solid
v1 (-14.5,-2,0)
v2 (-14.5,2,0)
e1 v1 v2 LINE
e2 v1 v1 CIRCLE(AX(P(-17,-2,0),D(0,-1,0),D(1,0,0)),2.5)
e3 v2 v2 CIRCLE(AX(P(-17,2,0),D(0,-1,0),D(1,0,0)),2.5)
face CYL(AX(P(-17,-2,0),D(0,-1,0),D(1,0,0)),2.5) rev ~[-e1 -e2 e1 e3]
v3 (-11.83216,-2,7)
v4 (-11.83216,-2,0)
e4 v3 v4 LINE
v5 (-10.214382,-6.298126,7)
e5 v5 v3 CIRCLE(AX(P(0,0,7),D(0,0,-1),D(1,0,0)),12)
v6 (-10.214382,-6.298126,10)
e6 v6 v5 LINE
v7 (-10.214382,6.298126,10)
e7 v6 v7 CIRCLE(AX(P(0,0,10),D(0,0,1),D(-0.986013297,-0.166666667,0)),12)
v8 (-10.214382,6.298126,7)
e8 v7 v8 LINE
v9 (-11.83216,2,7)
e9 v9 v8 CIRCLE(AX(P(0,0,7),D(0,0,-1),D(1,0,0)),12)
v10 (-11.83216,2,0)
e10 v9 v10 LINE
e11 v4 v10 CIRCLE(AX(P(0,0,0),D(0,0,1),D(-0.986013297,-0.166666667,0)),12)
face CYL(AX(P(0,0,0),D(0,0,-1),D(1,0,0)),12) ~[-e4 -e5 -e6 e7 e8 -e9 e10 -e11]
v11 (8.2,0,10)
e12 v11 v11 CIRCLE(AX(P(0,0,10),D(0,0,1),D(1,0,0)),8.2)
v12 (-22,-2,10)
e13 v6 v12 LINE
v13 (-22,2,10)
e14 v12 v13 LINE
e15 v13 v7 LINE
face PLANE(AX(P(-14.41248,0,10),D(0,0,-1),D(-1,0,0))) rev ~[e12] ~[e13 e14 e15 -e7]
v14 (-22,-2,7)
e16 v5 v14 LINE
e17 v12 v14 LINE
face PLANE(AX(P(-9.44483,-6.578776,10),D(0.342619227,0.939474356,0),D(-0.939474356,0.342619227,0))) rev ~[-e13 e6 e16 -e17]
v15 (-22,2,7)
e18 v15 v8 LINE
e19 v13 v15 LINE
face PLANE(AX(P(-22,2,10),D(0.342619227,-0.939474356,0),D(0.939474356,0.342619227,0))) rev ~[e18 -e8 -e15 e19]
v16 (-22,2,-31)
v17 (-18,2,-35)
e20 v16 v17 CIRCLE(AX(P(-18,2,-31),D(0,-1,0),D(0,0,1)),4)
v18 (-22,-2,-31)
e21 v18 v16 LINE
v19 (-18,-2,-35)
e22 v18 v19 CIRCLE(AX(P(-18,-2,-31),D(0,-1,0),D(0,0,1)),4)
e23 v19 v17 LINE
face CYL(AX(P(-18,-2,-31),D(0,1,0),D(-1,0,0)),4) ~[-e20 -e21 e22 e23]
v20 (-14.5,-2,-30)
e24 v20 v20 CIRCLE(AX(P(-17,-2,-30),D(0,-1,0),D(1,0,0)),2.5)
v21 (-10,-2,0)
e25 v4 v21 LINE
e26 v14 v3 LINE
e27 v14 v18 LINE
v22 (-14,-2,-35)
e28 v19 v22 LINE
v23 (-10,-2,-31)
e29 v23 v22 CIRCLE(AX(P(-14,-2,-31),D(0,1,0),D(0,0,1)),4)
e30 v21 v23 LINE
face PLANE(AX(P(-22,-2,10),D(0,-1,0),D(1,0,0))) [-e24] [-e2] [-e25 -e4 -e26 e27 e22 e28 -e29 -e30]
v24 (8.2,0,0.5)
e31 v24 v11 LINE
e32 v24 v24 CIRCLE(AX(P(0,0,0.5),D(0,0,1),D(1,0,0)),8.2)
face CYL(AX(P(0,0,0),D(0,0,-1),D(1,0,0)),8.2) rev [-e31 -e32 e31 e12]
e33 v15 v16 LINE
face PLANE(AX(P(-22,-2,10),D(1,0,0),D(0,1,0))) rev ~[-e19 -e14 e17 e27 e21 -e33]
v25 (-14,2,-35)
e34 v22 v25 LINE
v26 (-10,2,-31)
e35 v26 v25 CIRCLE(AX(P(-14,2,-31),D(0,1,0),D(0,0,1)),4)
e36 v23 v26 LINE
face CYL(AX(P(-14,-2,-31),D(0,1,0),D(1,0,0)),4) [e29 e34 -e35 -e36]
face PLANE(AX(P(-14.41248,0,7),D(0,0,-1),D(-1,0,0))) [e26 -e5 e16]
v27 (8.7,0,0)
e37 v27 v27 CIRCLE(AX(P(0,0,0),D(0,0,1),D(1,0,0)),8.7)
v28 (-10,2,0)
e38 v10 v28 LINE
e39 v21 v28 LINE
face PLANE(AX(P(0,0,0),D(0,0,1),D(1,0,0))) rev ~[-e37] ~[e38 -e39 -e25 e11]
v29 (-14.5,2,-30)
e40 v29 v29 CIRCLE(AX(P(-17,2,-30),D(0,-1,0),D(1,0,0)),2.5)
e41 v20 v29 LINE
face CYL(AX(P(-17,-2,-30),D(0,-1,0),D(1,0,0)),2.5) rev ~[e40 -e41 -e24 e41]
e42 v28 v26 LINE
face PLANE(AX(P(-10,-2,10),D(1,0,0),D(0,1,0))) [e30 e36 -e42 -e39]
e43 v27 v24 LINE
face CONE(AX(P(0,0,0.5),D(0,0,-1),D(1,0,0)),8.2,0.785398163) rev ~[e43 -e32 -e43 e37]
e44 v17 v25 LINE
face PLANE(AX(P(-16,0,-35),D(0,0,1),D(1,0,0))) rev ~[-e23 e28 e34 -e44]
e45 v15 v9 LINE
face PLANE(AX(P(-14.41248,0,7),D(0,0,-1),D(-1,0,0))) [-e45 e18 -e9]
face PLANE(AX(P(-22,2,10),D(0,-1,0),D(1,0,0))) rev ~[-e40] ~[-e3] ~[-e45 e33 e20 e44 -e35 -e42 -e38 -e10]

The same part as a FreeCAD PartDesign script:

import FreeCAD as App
import Part
import Sketcher
Q = App.Units.Quantity


def edges_at(feature, points):
    """Names of the edges that pass closest to the given points."""
    edges = feature.Shape.Edges
    near = lambda p: min(range(len(edges)), key=lambda i: edges[i].distToShape(Part.Vertex(*p))[0])
    return sorted({f"Edge{near(p) + 1}" for p in points})

doc = App.newDocument("Part")
params = doc.addObject("Spreadsheet::Sheet", "Params")
for row, (alias, value) in enumerate([
    ("sketch1_diameter", "24 mm"),
    ("sketch1_diameter2", "16.4 mm"),
    ("pad1_length", "10 mm"),
    ("sketch2_width", "12 mm"),
    ("sketch2_height", "4 mm"),
    ("pad2_length", "45 mm"),
    ("sketch3_diameter", "5 mm"),
    ("pocket1_length", "5 mm"),
    ("sketch4_height", "4 mm"),
    ("pad3_length", "3 mm"),
    ("fillet_radius", "4 mm"),
    ("chamfer_size", "0.5 mm"),
], start=1):
    params.set(f"A{row}", alias)
    params.set(f"B{row}", "=" + value)
    params.setAlias(f"B{row}", alias)

body = doc.addObject("PartDesign::Body", "Body")

sketch1 = body.newObject("Sketcher::SketchObject", "Sketch")
sketch1.AttachmentSupport = (doc.getObject("XY_Plane"), [""])
sketch1.MapMode = "FlatFace"
sketch1.addGeometry(Part.Circle(App.Vector(0, 0, 0), App.Vector(0, 0, 1), 12), False)
sketch1.addGeometry(Part.Circle(App.Vector(0, 0, 0), App.Vector(0, 0, 1), 8.2), False)
sketch1.addConstraint(Sketcher.Constraint("Coincident", 0, 3, -1, 1))
sketch1.addConstraint(Sketcher.Constraint("Coincident", 1, 3, -1, 1))
sketch1.addConstraint(Sketcher.Constraint("Diameter", 0, Q("24 mm")))
sketch1.addConstraint(Sketcher.Constraint("Diameter", 1, Q("16.4 mm")))
sketch1.setExpression("Constraints[2]", "Params.sketch1_diameter")
sketch1.setExpression("Constraints[3]", "Params.sketch1_diameter2")
pad1 = body.newObject("PartDesign::Pad", "Pad")
pad1.Profile = sketch1
pad1.setExpression("Length", "Params.pad1_length")

sketch2 = body.newObject("Sketcher::SketchObject", "Sketch001")
sketch2.AttachmentSupport = (doc.getObject("XY_Plane"), [""])
sketch2.MapMode = "FlatFace"
sketch2.AttachmentOffset = App.Placement(App.Vector(0, 0, 10), App.Rotation())
sketch2.addGeometry(Part.LineSegment(App.Vector(-22, 2, 0), App.Vector(-22, -2, 0)), False)
sketch2.addGeometry(Part.LineSegment(App.Vector(-22, -2, 0), App.Vector(-10, -2, 0)), False)
sketch2.addGeometry(Part.LineSegment(App.Vector(-10, -2, 0), App.Vector(-10, 2, 0)), False)
sketch2.addGeometry(Part.LineSegment(App.Vector(-10, 2, 0), App.Vector(-22, 2, 0)), False)
sketch2.addConstraint(Sketcher.Constraint("Coincident", 0, 2, 1, 1))
sketch2.addConstraint(Sketcher.Constraint("Coincident", 1, 2, 2, 1))
sketch2.addConstraint(Sketcher.Constraint("Coincident", 2, 2, 3, 1))
sketch2.addConstraint(Sketcher.Constraint("Coincident", 3, 2, 0, 1))
sketch2.addConstraint(Sketcher.Constraint("Vertical", 0))
sketch2.addConstraint(Sketcher.Constraint("Horizontal", 1))
sketch2.addConstraint(Sketcher.Constraint("Vertical", 2))
sketch2.addConstraint(Sketcher.Constraint("Horizontal", 3))
sketch2.addConstraint(Sketcher.Constraint("DistanceX", 1, 1, 1, 2, Q("12 mm")))
sketch2.addConstraint(Sketcher.Constraint("DistanceY", 0, 2, 0, 1, Q("4 mm")))
sketch2.addConstraint(Sketcher.Constraint("DistanceX", 0, 2, -1, 1, Q("22 mm")))
sketch2.addConstraint(Sketcher.Constraint("DistanceY", 0, 2, -1, 1, Q("2 mm")))
sketch2.setExpression("Constraints[8]", "Params.sketch2_width")
sketch2.setExpression("Constraints[9]", "Params.sketch2_height")
pad2 = body.newObject("PartDesign::Pad", "Pad001")
pad2.Profile = sketch2
pad2.setExpression("Length", "Params.pad2_length")
pad2.Reversed = True

sketch3 = body.newObject("Sketcher::SketchObject", "Sketch002")
sketch3.AttachmentSupport = (doc.getObject("XZ_Plane"), [""])
sketch3.MapMode = "FlatFace"
sketch3.AttachmentOffset = App.Placement(App.Vector(0, 0, 2), App.Rotation())
sketch3.addGeometry(Part.Circle(App.Vector(-17, 0, 0), App.Vector(0, 0, 1), 2.5), False)
sketch3.addGeometry(Part.Circle(App.Vector(-17, -30, 0), App.Vector(0, 0, 1), 2.5), False)
sketch3.addConstraint(Sketcher.Constraint("Equal", 0, 1))
sketch3.addConstraint(Sketcher.Constraint("PointOnObject", 0, 3, -1))
sketch3.addConstraint(Sketcher.Constraint("Vertical", 0, 3, 1, 3))
sketch3.addConstraint(Sketcher.Constraint("Diameter", 0, Q("5 mm")))
sketch3.addConstraint(Sketcher.Constraint("DistanceX", 0, 3, -1, 1, Q("17 mm")))
sketch3.addConstraint(Sketcher.Constraint("DistanceY", 1, 3, -1, 1, Q("30 mm")))
sketch3.setExpression("Constraints[3]", "Params.sketch3_diameter")
pocket1 = body.newObject("PartDesign::Pocket", "Pocket")
pocket1.Profile = sketch3
pocket1.setExpression("Length", "Params.pocket1_length")

sketch4 = body.newObject("Sketcher::SketchObject", "Sketch003")
sketch4.AttachmentSupport = (doc.getObject("XY_Plane"), [""])
sketch4.MapMode = "FlatFace"
sketch4.AttachmentOffset = App.Placement(App.Vector(0, 0, 10), App.Rotation())
sketch4.addGeometry(Part.LineSegment(App.Vector(-9.44483, 6.578776, 0), App.Vector(-22, 2, 0)), False)
sketch4.addGeometry(Part.LineSegment(App.Vector(-22, 2, 0), App.Vector(-22, -2, 0)), False)
sketch4.addGeometry(Part.LineSegment(App.Vector(-22, -2, 0), App.Vector(-9.44483, -6.578776, 0)), False)
sketch4.addGeometry(Part.LineSegment(App.Vector(-9.44483, -6.578776, 0), App.Vector(-9.44483, 6.578776, 0)), False)
sketch4.addConstraint(Sketcher.Constraint("Coincident", 0, 2, 1, 1))
sketch4.addConstraint(Sketcher.Constraint("Coincident", 1, 2, 2, 1))
sketch4.addConstraint(Sketcher.Constraint("Coincident", 2, 2, 3, 1))
sketch4.addConstraint(Sketcher.Constraint("Coincident", 3, 2, 0, 1))
sketch4.addConstraint(Sketcher.Constraint("Vertical", 1))
sketch4.addConstraint(Sketcher.Constraint("Vertical", 3))
sketch4.addConstraint(Sketcher.Constraint("Equal", 0, 2))
sketch4.addConstraint(Sketcher.Constraint("DistanceY", 1, 2, 1, 1, Q("4 mm")))
sketch4.addConstraint(Sketcher.Constraint("DistanceX", 0, 2, -1, 1, Q("22 mm")))
sketch4.addConstraint(Sketcher.Constraint("DistanceY", -1, 1, 0, 2, Q("2 mm")))
sketch4.addConstraint(Sketcher.Constraint("DistanceY", 3, 1, 3, 2, Q("13.157552 mm")))
sketch4.addConstraint(Sketcher.Constraint("DistanceX", 2, 2, -1, 1, Q("9.44483 mm")))
sketch4.setExpression("Constraints[7]", "Params.sketch4_height")
pad3 = body.newObject("PartDesign::Pad", "Pad002")
pad3.Profile = sketch4
pad3.setExpression("Length", "Params.pad3_length")
pad3.Reversed = True
doc.recompute()

fillet = body.newObject("PartDesign::Fillet", "Fillet")
fillet.Base = (pad3, edges_at(pad3, [(-22, 0, -35), (-10, 0, -35)]))
fillet.setExpression("Radius", "Params.fillet_radius")
doc.recompute()

chamfer = body.newObject("PartDesign::Chamfer", "Chamfer")
chamfer.Base = (fillet, edges_at(fillet, [(-8.2, 0, 0)]))
chamfer.setExpression("Size", "Params.chamfer_size")

doc.recompute()
